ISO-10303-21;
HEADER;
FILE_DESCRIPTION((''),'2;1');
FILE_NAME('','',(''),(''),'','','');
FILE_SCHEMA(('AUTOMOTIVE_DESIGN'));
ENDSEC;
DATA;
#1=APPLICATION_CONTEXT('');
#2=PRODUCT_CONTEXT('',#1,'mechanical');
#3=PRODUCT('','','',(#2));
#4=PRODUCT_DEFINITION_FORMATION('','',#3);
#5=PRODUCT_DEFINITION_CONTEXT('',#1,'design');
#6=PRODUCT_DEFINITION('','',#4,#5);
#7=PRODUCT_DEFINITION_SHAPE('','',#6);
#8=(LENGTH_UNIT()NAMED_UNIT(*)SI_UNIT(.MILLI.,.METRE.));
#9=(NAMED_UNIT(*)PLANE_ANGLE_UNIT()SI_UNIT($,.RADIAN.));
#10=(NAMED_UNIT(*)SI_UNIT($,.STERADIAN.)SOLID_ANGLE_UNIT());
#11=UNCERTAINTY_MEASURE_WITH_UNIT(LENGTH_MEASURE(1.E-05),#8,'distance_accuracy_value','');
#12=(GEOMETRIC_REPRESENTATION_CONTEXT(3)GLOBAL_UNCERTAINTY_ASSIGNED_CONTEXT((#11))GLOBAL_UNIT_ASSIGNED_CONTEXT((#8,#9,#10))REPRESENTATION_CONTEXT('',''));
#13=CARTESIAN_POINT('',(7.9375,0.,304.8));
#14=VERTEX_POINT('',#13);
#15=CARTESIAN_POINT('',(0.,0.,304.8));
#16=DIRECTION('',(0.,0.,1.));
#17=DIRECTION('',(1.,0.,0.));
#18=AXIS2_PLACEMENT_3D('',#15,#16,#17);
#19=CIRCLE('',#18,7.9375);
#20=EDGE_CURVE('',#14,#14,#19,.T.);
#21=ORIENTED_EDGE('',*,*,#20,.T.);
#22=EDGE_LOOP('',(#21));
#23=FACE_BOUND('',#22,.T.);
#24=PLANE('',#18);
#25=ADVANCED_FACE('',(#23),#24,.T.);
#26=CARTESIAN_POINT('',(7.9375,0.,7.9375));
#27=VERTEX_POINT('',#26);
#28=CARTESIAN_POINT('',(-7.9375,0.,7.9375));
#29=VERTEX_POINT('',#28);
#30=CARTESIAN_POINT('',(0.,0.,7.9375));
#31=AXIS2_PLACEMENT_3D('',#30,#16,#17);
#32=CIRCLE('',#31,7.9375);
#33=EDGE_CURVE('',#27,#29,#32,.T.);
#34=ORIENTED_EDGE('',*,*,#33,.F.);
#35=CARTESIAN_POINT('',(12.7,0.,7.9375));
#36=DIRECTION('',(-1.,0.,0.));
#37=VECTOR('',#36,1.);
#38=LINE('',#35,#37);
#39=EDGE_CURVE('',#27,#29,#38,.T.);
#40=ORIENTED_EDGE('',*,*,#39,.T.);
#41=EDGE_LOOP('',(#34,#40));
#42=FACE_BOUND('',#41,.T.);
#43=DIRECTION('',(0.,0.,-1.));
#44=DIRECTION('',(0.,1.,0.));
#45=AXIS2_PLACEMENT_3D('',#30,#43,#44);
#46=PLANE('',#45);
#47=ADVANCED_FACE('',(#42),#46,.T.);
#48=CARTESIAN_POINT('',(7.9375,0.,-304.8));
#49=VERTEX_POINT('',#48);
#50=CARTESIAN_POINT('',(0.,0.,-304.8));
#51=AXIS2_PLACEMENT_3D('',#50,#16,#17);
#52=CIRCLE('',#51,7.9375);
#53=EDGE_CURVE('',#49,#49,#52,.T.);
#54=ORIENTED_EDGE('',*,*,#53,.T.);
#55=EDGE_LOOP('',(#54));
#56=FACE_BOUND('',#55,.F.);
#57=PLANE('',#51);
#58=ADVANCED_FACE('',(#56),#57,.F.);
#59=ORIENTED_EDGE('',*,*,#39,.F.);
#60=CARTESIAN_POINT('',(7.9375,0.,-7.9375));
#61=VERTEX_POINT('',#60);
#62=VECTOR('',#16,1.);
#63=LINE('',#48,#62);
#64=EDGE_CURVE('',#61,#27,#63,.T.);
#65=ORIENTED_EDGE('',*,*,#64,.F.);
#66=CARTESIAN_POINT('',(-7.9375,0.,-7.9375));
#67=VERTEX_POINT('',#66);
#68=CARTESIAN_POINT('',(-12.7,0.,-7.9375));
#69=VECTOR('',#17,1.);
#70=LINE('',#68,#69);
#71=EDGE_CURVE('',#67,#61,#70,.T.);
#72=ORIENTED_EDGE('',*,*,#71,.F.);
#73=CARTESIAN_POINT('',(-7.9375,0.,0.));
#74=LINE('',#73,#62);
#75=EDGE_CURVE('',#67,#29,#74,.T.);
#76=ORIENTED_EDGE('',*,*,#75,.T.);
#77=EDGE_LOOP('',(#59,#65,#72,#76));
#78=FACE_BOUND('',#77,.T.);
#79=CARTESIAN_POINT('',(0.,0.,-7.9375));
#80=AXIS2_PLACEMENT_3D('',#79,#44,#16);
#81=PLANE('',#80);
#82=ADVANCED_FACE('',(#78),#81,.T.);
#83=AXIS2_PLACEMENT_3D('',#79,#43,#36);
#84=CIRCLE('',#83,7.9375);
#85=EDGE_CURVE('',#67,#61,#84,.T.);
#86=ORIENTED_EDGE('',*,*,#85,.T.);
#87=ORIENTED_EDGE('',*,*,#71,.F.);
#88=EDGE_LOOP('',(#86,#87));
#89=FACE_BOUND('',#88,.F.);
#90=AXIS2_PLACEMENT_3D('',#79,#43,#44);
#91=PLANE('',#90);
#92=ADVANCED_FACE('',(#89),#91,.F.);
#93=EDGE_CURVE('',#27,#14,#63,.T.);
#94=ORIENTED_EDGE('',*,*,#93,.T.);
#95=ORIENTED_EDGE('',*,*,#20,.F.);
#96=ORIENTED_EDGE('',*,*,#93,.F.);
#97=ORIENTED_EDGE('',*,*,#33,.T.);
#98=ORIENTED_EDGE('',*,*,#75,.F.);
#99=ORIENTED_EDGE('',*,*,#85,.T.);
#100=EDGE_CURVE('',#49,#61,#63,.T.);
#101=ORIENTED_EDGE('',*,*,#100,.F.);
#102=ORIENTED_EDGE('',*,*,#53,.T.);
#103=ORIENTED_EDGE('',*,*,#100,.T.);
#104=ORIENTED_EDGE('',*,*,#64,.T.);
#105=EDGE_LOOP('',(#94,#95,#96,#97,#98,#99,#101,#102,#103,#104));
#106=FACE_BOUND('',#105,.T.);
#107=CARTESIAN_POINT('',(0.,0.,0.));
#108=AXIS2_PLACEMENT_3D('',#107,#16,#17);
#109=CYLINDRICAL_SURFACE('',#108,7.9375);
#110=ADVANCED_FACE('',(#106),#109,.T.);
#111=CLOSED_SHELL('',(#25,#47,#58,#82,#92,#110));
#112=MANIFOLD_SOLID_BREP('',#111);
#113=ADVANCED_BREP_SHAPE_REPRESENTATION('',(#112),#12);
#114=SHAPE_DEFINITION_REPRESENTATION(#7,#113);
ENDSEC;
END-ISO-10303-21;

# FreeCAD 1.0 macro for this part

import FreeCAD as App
import Part
import Sketcher
from FreeCAD import Vector
Q = App.Units.Quantity

doc = App.newDocument("Part")
body = doc.addObject("PartDesign::Body", "Body")

# Sketch on XY plane
sketch1 = body.newObject("Sketcher::SketchObject", "Sketch")
sketch1.AttachmentSupport = (doc.getObject("XY_Plane"), [""])
sketch1.MapMode = "FlatFace"
sketch1.addGeometry(Part.Circle(Vector(0, 0, 0), Vector(0, 0, 1), 8), False)
sketch1.addConstraint([
    Sketcher.Constraint("Coincident", 0, 3, -1, 1),
    Sketcher.Constraint("Diameter", 0, Q("0.625 in")),
])
pad1 = body.newObject("PartDesign::Pad", "Pad")
pad1.Profile = sketch1
pad1.Length = Q("24 in")
pad1.Midplane = True

# Sketch on YZ plane
sketch2 = body.newObject("Sketcher::SketchObject", "Sketch001")
sketch2.AttachmentSupport = (doc.getObject("YZ_Plane"), [""])
sketch2.MapMode = "FlatFace"
sketch2.addGeometry([
    Part.LineSegment(Vector(0, 8, 0), Vector(0, -8, 0)),
    Part.LineSegment(Vector(0, -8, 0), Vector(8, -8, 0)),
    Part.LineSegment(Vector(8, -8, 0), Vector(8, 8, 0)),
    Part.LineSegment(Vector(8, 8, 0), Vector(0, 8, 0)),
], False)
sketch2.addConstraint([
    Sketcher.Constraint("Coincident", 0, 2, 1, 1),
    Sketcher.Constraint("Coincident", 1, 2, 2, 1),
    Sketcher.Constraint("Coincident", 2, 2, 3, 1),
    Sketcher.Constraint("Coincident", 3, 2, 0, 1),
    Sketcher.Constraint("Vertical", 0),
    Sketcher.Constraint("Horizontal", 1),
    Sketcher.Constraint("Vertical", 2),
    Sketcher.Constraint("Horizontal", 3),
    Sketcher.Constraint("Symmetric", 0, 2, 3, 2, -1, 1),
    Sketcher.Constraint("DistanceX", 1, 1, 1, 2, Q("0.3125 in")),
    Sketcher.Constraint("DistanceY", 0, 2, 0, 1, Q("0.625 in")),
])
pocket1 = body.newObject("PartDesign::Pocket", "Pocket")
pocket1.Profile = sketch2
pocket1.Length = Q("1 in")
pocket1.Midplane = True

doc.recompute()
